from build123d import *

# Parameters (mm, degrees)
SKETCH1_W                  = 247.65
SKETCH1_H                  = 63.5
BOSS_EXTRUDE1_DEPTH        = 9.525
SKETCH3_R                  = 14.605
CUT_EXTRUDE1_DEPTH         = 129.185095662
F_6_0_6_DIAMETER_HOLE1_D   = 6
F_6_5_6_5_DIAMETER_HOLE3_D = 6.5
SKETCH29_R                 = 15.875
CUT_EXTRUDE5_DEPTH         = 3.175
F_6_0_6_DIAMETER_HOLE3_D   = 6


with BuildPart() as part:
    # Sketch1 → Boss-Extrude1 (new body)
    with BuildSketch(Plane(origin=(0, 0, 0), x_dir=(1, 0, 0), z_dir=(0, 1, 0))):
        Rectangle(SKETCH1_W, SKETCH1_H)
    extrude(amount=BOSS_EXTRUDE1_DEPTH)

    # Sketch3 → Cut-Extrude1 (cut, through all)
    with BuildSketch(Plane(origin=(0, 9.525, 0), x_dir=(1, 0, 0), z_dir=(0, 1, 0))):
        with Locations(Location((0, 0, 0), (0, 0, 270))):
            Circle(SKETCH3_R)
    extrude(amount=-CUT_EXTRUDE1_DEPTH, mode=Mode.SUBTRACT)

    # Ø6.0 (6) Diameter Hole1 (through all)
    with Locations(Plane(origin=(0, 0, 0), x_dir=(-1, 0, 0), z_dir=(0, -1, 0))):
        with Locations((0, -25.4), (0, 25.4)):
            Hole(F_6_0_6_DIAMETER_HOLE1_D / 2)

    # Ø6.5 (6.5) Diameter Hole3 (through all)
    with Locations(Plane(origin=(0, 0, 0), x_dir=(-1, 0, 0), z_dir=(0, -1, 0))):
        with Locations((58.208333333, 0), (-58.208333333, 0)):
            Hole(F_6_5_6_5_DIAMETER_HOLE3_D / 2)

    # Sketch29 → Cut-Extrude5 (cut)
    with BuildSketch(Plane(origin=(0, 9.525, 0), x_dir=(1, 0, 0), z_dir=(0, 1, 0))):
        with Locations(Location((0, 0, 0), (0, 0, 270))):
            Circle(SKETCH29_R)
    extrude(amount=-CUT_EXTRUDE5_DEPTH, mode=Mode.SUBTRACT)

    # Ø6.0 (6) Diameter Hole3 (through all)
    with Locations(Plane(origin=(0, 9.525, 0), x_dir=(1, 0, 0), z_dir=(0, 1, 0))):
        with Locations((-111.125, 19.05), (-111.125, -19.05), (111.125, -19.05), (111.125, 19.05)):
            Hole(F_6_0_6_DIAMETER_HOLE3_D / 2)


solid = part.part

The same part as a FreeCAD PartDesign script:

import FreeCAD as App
import Part
import Sketcher

V = App.Vector
Q = App.Units.Quantity


def add_polygon(sketch, points):
    """Adds a closed chain of lines whose ends are joined by coincident constraints."""
    first, n = sketch.GeometryCount, len(points)
    for a, b in zip(points, points[1:] + points[:1]):
        sketch.addGeometry(Part.LineSegment(App.Vector(*a, 0), App.Vector(*b, 0)), False)
    for i in range(n):
        sketch.addConstraint(Sketcher.Constraint("Coincident", first + i, 2, first + (i + 1) % n, 1))

doc = App.newDocument("Part")
params = doc.addObject("Spreadsheet::Sheet", "Params")
for row, (alias, value) in enumerate([
    ("sketch1_height", "2.5 in"),
    ("sketch1_width", "9.75 in"),
    ("pad1_length", "0.375 in"),
    ("sketch2_diameter", "1.15 in"),
    ("hole_diameter", "6 mm"),
    ("hole2_diameter", "6.5 mm"),
    ("sketch5_diameter", "1.25 in"),
    ("pocket2_length", "0.125 in"),
    ("hole3_diameter", "6 mm"),
], start=1):
    params.set(f"A{row}", alias)
    params.set(f"B{row}", "=" + value)
    params.setAlias(f"B{row}", alias)

body = doc.addObject("PartDesign::Body", "Body")

sketch1 = body.newObject("Sketcher::SketchObject", "Sketch")
sketch1.AttachmentSupport = (doc.getObject("XZ_Plane"), [""])
sketch1.MapMode = "FlatFace"
add_polygon(sketch1, [(-124, -32), (-124, 32), (124, 32), (124, -32)])
sketch1.addConstraint([
    Sketcher.Constraint("Vertical", 0),
    Sketcher.Constraint("Horizontal", 1),
    Sketcher.Constraint("Vertical", 2),
    Sketcher.Constraint("Horizontal", 3),
    Sketcher.Constraint("Symmetric", 0, 2, 2, 2, -1, 1),
    Sketcher.Constraint("DistanceY", 0, 1, 0, 2, Q("2.5 in")),
    Sketcher.Constraint("DistanceX", 1, 1, 1, 2, Q("9.75 in")),
])
sketch1.setExpression("Constraints[9]", "Params.sketch1_height")
sketch1.setExpression("Constraints[10]", "Params.sketch1_width")
pad1 = body.newObject("PartDesign::Pad", "Pad")
pad1.Profile = sketch1
pad1.setExpression("Length", "Params.pad1_length")
pad1.Reversed = True

sketch2 = body.newObject("Sketcher::SketchObject", "Sketch001")
sketch2.AttachmentSupport = (doc.getObject("XZ_Plane"), [""])
sketch2.MapMode = "FlatFace"
sketch2.AttachmentOffset = App.Placement(V(0, 0, -0.375 * 25.4), App.Rotation())
sketch2.addGeometry(Part.Circle(V(0, 0, 0), V(0, 0, 1), 15), False)
sketch2.addConstraint([
    Sketcher.Constraint("Coincident", 0, 3, -1, 1),
    Sketcher.Constraint("Diameter", 0, Q("1.15 in")),
])
sketch2.setExpression("Constraints[1]", "Params.sketch2_diameter")
pocket1 = body.newObject("PartDesign::Pocket", "Pocket")
pocket1.Profile = sketch2
pocket1.Type = "ThroughAll"
pocket1.Reversed = True

sketch3 = body.newObject("Sketcher::SketchObject", "Sketch002")
sketch3.AttachmentSupport = (doc.getObject("XZ_Plane"), [""])
sketch3.MapMode = "FlatFace"
sketch3.addGeometry([
    Part.Circle(V(0, 25.4, 0), V(0, 0, 1), 3),
    Part.Circle(V(0, -25.4, 0), V(0, 0, 1), 3),
], False)
sketch3.addConstraint([
    Sketcher.Constraint("Equal", 0, 1),
    Sketcher.Constraint("Symmetric", 0, 3, 1, 3, -1, 1),
    Sketcher.Constraint("PointOnObject", 0, 3, -2),
    Sketcher.Constraint("DistanceY", -1, 1, 0, 3, Q("1 in")),
    Sketcher.Constraint("Diameter", 0, Q("6 mm")),
])
doc.recompute()
hole = body.newObject("PartDesign::Hole", "Hole")
hole.Profile = sketch3
hole.ThreadType = "None"
hole.setExpression("Diameter", "Params.hole_diameter")
hole.DepthType = "ThroughAll"

sketch4 = body.newObject("Sketcher::SketchObject", "Sketch003")
sketch4.AttachmentSupport = (doc.getObject("XZ_Plane"), [""])
sketch4.MapMode = "FlatFace"
sketch4.addGeometry([
    Part.Circle(V(-58.2, 0, 0), V(0, 0, 1), 3.2),
    Part.Circle(V(58.2, 0, 0), V(0, 0, 1), 3.2),
], False)
sketch4.addConstraint([
    Sketcher.Constraint("Equal", 0, 1),
    Sketcher.Constraint("Symmetric", 0, 3, 1, 3, -1, 1),
    Sketcher.Constraint("PointOnObject", 0, 3, -1),
    Sketcher.Constraint("Diameter", 0, Q("6.5 mm")),
    Sketcher.Constraint("DistanceX", 0, 3, -1, 1, Q("58.208333 mm")),
])
doc.recompute()
hole2 = body.newObject("PartDesign::Hole", "Hole001")
hole2.Profile = sketch4
hole2.ThreadType = "None"
hole2.setExpression("Diameter", "Params.hole2_diameter")
hole2.DepthType = "ThroughAll"

sketch5 = body.newObject("Sketcher::SketchObject", "Sketch004")
sketch5.AttachmentSupport = (doc.getObject("XZ_Plane"), [""])
sketch5.MapMode = "FlatFace"
sketch5.AttachmentOffset = App.Placement(V(0, 0, -0.375 * 25.4), App.Rotation())
sketch5.addGeometry(Part.Circle(V(0, 0, 0), V(0, 0, 1), 16), False)
sketch5.addConstraint([
    Sketcher.Constraint("Coincident", 0, 3, -1, 1),
    Sketcher.Constraint("Diameter", 0, Q("1.25 in")),
])
sketch5.setExpression("Constraints[1]", "Params.sketch5_diameter")
pocket2 = body.newObject("PartDesign::Pocket", "Pocket001")
pocket2.Profile = sketch5
pocket2.setExpression("Length", "Params.pocket2_length")
pocket2.Reversed = True

sketch6 = body.newObject("Sketcher::SketchObject", "Sketch005")
sketch6.AttachmentSupport = (doc.getObject("XZ_Plane"), [""])
sketch6.MapMode = "FlatFace"
sketch6.AttachmentOffset = App.Placement(V(0, 0, -0.375 * 25.4), App.Rotation())
sketch6.addGeometry([
    Part.Circle(V(-111.1, -19.1, 0), V(0, 0, 1), 3),
    Part.Circle(V(-111.1, 19.1, 0), V(0, 0, 1), 3),
    Part.Circle(V(111.1, 19.1, 0), V(0, 0, 1), 3),
    Part.Circle(V(111.1, -19.1, 0), V(0, 0, 1), 3),
], False)
sketch6.addConstraint([
    Sketcher.Constraint("Equal", 0, 1),
    Sketcher.Constraint("Equal", 1, 2),
    Sketcher.Constraint("Equal", 2, 3),
    Sketcher.Constraint("Symmetric", 0, 3, 2, 3, -1, 1),
    Sketcher.Constraint("Symmetric", 1, 3, 3, 3, -1, 1),
    Sketcher.Constraint("Symmetric", 1, 3, 2, 3, -2),
    Sketcher.Constraint("DistanceY", 0, 3, 1, 3, Q("1.5 in")),
    Sketcher.Constraint("Diameter", 0, Q("6 mm")),
    Sketcher.Constraint("DistanceX", 1, 3, 2, 3, Q("8.75 in")),
])
doc.recompute()
hole3 = body.newObject("PartDesign::Hole", "Hole002")
hole3.Profile = sketch6
hole3.ThreadType = "None"
hole3.setExpression("Diameter", "Params.hole3_diameter")
hole3.DepthType = "ThroughAll"
hole3.Reversed = True

doc.recompute()
